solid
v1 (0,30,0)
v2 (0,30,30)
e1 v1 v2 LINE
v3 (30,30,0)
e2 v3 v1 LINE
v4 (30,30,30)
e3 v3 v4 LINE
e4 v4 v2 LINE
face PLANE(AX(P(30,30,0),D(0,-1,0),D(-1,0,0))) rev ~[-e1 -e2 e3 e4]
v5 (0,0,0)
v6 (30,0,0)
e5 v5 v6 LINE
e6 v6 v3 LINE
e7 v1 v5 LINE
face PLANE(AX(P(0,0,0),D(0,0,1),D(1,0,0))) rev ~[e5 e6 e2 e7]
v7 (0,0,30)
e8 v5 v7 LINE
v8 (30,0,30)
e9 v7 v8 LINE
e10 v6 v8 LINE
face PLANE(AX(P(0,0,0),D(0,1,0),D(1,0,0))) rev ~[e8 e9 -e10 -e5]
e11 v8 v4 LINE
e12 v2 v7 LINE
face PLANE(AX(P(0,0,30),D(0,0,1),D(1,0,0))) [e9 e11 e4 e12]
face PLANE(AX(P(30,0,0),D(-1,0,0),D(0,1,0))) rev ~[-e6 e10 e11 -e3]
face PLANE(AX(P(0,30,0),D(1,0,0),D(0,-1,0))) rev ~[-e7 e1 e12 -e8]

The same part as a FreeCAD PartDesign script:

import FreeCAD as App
import Part
import Sketcher
from FreeCAD import Vector
Q = App.Units.Quantity


def add_polygon(sketch, points):
    """Adds a closed chain of lines whose ends are joined by coincident constraints."""
    first, n = sketch.GeometryCount, len(points)
    for a, b in zip(points, points[1:] + points[:1]):
        sketch.addGeometry(Part.LineSegment(App.Vector(*a, 0), App.Vector(*b, 0)), False)
    for i in range(n):
        sketch.addConstraint(Sketcher.Constraint("Coincident", first + i, 2, first + (i + 1) % n, 1))

doc = App.newDocument("Part")
body = doc.addObject("PartDesign::Body", "Body")

# Sketch on XY plane
sketch1 = body.newObject("Sketcher::SketchObject", "Sketch")
sketch1.AttachmentSupport = (doc.getObject("XY_Plane"), [""])
sketch1.MapMode = "FlatFace"
add_polygon(sketch1, [(0, 30), (0, 0), (30, 0), (30, 30)])  # lines 0-3
sketch1.addConstraint(Sketcher.Constraint("Vertical", 0))
sketch1.addConstraint(Sketcher.Constraint("Horizontal", 1))
sketch1.addConstraint(Sketcher.Constraint("Vertical", 2))
sketch1.addConstraint(Sketcher.Constraint("Horizontal", 3))
sketch1.addConstraint(Sketcher.Constraint("Coincident", 0, 2, -1, 1))
sketch1.addConstraint(Sketcher.Constraint("Equal", 3, 0))
sketch1.addConstraint(Sketcher.Constraint("DistanceX", 1, 1, 1, 2, Q("30 mm")))
pad1 = body.newObject("PartDesign::Pad", "Pad")
pad1.Profile = sketch1
pad1.Length = 30

doc.recompute()
